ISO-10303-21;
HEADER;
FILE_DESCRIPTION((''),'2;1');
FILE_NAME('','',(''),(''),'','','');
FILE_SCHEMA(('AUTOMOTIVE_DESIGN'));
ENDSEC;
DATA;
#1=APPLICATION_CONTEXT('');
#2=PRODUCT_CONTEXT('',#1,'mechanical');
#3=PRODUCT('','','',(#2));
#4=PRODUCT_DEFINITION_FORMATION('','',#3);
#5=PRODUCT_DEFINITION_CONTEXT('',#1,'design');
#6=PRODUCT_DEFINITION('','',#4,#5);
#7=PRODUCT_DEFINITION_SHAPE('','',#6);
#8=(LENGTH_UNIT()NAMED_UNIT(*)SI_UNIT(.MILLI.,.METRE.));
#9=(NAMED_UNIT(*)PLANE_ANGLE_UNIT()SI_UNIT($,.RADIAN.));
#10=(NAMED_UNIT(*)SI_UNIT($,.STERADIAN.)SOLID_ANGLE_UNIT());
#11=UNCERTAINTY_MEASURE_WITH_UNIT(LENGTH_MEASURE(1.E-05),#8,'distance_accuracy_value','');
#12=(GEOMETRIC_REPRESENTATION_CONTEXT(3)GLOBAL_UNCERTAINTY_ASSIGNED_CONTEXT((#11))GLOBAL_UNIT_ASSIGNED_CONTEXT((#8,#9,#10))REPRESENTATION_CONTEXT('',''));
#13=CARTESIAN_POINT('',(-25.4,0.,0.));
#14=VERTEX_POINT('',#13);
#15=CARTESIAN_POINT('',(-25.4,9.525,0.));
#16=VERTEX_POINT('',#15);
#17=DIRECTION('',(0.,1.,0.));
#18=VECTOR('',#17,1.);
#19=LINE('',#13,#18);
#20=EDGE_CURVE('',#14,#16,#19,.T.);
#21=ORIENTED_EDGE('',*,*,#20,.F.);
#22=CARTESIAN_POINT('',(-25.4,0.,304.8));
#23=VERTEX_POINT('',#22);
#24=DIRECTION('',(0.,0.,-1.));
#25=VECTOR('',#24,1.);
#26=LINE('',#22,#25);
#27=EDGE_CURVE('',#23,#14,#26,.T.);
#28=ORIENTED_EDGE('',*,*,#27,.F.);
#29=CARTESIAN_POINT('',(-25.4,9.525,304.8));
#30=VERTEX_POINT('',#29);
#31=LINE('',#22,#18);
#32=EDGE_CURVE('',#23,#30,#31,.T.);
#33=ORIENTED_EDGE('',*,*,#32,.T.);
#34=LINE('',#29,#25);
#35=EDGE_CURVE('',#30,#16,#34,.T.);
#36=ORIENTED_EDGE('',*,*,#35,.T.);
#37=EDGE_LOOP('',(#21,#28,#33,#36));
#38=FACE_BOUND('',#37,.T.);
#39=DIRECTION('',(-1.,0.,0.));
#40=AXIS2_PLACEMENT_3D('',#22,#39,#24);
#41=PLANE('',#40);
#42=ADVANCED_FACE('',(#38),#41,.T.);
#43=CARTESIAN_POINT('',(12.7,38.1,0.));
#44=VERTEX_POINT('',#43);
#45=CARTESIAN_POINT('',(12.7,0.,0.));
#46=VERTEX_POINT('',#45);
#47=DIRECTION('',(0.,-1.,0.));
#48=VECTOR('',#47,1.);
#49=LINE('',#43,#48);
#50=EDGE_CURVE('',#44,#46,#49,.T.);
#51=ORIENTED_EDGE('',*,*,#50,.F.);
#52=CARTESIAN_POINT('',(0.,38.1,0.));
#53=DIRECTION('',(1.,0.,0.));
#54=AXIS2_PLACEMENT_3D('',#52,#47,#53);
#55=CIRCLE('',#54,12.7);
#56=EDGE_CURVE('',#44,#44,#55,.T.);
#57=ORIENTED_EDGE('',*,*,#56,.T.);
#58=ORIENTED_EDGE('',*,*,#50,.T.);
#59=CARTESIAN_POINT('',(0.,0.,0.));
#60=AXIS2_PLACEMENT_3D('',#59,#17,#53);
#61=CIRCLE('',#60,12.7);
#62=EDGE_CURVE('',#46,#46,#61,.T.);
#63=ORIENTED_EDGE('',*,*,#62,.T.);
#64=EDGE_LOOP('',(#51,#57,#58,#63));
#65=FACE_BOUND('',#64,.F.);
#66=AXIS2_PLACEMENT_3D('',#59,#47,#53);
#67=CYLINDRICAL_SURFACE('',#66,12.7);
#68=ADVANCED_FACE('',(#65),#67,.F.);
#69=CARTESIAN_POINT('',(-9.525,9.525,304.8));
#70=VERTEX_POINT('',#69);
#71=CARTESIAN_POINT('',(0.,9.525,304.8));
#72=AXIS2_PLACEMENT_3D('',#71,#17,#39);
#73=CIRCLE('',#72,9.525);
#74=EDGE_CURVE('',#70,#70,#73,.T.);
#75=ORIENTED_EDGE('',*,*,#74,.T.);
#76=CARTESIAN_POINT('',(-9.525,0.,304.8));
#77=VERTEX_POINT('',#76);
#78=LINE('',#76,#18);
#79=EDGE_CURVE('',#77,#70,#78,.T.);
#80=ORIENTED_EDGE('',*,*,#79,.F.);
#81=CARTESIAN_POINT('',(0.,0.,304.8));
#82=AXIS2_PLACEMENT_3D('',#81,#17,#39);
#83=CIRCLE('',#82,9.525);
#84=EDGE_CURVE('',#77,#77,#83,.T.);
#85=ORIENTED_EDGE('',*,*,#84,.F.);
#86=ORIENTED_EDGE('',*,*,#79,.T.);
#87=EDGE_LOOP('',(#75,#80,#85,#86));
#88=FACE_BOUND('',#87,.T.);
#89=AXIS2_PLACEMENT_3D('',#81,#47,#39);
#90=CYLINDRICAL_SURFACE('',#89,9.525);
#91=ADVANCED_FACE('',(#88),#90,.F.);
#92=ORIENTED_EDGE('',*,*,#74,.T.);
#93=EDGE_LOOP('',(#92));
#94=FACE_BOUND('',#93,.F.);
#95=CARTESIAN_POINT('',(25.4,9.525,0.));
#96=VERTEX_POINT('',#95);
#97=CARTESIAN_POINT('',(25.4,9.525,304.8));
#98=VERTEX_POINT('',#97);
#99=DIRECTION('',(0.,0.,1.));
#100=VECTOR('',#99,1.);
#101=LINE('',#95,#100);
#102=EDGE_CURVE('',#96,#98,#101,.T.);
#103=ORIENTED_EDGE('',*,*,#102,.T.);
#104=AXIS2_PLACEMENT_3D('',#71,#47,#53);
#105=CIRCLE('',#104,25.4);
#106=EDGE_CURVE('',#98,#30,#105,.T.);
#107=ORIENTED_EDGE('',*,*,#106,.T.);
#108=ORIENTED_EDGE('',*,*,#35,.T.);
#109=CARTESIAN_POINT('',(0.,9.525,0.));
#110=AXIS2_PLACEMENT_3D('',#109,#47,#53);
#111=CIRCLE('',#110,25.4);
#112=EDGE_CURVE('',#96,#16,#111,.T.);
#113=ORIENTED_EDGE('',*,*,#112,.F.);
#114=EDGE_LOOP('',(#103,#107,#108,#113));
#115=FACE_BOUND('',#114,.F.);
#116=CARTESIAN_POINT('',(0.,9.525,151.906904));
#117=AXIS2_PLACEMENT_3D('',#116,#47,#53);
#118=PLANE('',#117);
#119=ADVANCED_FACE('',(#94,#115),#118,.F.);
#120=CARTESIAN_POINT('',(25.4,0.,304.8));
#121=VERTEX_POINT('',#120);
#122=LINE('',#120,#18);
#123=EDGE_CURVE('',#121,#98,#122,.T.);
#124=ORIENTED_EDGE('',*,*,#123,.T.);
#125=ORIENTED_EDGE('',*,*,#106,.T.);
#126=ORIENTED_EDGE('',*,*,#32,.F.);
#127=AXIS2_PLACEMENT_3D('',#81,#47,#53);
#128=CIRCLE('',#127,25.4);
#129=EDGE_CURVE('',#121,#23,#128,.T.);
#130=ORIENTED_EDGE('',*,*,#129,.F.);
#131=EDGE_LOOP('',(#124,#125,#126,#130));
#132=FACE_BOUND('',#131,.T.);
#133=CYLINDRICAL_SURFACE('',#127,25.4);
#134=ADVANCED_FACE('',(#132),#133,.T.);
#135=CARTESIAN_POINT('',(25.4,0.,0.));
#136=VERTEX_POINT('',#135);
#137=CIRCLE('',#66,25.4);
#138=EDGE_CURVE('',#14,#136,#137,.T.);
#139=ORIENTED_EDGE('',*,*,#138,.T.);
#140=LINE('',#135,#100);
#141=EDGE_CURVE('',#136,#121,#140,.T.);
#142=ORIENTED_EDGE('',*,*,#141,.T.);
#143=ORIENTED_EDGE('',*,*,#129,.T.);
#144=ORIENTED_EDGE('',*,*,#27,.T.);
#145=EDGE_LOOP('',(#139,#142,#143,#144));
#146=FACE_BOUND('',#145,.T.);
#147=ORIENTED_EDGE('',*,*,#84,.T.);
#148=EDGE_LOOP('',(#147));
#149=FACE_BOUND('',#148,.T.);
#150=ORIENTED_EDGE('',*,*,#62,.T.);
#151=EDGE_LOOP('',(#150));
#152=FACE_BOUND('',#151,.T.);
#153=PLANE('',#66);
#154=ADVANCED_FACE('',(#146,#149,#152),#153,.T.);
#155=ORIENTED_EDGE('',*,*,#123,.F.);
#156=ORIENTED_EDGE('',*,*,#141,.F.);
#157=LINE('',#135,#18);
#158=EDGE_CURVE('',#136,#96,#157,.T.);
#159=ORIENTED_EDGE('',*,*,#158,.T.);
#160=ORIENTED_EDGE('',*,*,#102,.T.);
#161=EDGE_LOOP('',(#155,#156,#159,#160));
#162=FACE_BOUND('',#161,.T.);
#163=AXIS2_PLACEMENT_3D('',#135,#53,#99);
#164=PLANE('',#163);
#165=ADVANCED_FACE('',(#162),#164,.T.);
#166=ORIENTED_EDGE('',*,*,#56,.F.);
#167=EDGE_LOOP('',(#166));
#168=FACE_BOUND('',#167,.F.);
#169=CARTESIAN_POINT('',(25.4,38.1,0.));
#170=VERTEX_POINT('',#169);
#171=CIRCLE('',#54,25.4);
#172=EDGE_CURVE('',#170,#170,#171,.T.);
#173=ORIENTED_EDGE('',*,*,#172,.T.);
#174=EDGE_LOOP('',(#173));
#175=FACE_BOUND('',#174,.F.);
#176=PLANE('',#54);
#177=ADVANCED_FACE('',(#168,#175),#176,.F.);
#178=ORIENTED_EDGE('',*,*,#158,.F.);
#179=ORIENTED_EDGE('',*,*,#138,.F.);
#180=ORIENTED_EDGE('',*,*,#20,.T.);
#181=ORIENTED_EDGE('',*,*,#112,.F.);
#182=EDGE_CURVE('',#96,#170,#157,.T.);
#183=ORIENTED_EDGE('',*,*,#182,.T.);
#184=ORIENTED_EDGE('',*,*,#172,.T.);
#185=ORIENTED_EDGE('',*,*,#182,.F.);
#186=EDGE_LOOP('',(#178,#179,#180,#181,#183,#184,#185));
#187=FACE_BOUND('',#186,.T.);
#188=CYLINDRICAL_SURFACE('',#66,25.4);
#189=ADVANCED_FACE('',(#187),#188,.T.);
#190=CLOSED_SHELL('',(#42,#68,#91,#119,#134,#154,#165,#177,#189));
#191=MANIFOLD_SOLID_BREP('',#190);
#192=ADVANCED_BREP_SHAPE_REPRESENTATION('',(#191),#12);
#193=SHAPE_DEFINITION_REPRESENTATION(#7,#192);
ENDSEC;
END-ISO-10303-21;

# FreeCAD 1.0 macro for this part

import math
import FreeCAD as App
import Part
import Sketcher
from FreeCAD import Vector
Q = App.Units.Quantity

doc = App.newDocument("Part")
body = doc.addObject("PartDesign::Body", "Body")

# Sketch on XZ plane
sketch1 = body.newObject("Sketcher::SketchObject", "Sketch")
sketch1.AttachmentSupport = (doc.getObject("XZ_Plane"), [""])
sketch1.MapMode = "FlatFace"
sketch1.addGeometry([
    Part.Circle(Vector(0, 0, 0), Vector(0, 0, 1), 25),
    Part.Circle(Vector(0, 0, 0), Vector(0, 0, 1), 13),
], False)
sketch1.addConstraint([
    Sketcher.Constraint("Coincident", 0, 3, -1, 1),
    Sketcher.Constraint("Coincident", 1, 3, -1, 1),
    Sketcher.Constraint("Diameter", 0, Q("2 in")),
    Sketcher.Constraint("Diameter", 1, Q("1 in")),
])
pad1 = body.newObject("PartDesign::Pad", "Pad")
pad1.Profile = sketch1
pad1.Length = Q("1.5 in")
pad1.Reversed = True

# Sketch on XZ plane
sketch2 = body.newObject("Sketcher::SketchObject", "Sketch001")
sketch2.AttachmentSupport = (doc.getObject("XZ_Plane"), [""])
sketch2.MapMode = "FlatFace"
sketch2.addGeometry([
    Part.ArcOfCircle(Part.Circle(Vector(0, 0, 0), Vector(0, 0, 1), 13), math.radians(0), math.radians(180)),  # 0
    Part.LineSegment(Vector(13, 0, 0), Vector(25, 0, 0)),  # 1
    Part.LineSegment(Vector(25, 0, 0), Vector(25, 305, 0)),  # 2
    Part.ArcOfCircle(Part.Circle(Vector(0, 305, 0), Vector(0, 0, 1), 25), math.radians(0), math.radians(180)),  # 3
    Part.LineSegment(Vector(-25, 305, 0), Vector(-25, 0, 0)),  # 4
    Part.LineSegment(Vector(-25, 0, 0), Vector(-13, 0, 0)),  # 5
    Part.Circle(Vector(0, 305, 0), Vector(0, 0, 1), 10),  # 6
], False)
sketch2.addConstraint([
    Sketcher.Constraint("Coincident", 0, 1, 1, 1),
    Sketcher.Constraint("Coincident", 1, 2, 2, 1),
    Sketcher.Constraint("Tangent", 2, 2, 3, 1),
    Sketcher.Constraint("Tangent", 3, 2, 4, 1),
    Sketcher.Constraint("Coincident", 4, 2, 5, 1),
    Sketcher.Constraint("Coincident", 5, 2, 0, 2),
    Sketcher.Constraint("Horizontal", 1),
    Sketcher.Constraint("Vertical", 2),
    Sketcher.Constraint("Vertical", 4),
    Sketcher.Constraint("Horizontal", 5),
    Sketcher.Constraint("Coincident", 0, 3, -1, 1),
    Sketcher.Constraint("Coincident", 6, 3, 3, 3),
    Sketcher.Constraint("Symmetric", 1, 2, 4, 2, -1, 1),
    Sketcher.Constraint("PointOnObject", 0, 1, -1),
    Sketcher.Constraint("Radius", 3, Q("1 in")),
    Sketcher.Constraint("Radius", 0, Q("0.5 in")),
    Sketcher.Constraint("Diameter", 6, Q("0.75 in")),
    Sketcher.Constraint("DistanceY", 2, 1, 2, 2, Q("12 in")),
])
pad2 = body.newObject("PartDesign::Pad", "Pad001")
pad2.Profile = sketch2
pad2.Length = Q("0.375 in")
pad2.Reversed = True

doc.recompute()
